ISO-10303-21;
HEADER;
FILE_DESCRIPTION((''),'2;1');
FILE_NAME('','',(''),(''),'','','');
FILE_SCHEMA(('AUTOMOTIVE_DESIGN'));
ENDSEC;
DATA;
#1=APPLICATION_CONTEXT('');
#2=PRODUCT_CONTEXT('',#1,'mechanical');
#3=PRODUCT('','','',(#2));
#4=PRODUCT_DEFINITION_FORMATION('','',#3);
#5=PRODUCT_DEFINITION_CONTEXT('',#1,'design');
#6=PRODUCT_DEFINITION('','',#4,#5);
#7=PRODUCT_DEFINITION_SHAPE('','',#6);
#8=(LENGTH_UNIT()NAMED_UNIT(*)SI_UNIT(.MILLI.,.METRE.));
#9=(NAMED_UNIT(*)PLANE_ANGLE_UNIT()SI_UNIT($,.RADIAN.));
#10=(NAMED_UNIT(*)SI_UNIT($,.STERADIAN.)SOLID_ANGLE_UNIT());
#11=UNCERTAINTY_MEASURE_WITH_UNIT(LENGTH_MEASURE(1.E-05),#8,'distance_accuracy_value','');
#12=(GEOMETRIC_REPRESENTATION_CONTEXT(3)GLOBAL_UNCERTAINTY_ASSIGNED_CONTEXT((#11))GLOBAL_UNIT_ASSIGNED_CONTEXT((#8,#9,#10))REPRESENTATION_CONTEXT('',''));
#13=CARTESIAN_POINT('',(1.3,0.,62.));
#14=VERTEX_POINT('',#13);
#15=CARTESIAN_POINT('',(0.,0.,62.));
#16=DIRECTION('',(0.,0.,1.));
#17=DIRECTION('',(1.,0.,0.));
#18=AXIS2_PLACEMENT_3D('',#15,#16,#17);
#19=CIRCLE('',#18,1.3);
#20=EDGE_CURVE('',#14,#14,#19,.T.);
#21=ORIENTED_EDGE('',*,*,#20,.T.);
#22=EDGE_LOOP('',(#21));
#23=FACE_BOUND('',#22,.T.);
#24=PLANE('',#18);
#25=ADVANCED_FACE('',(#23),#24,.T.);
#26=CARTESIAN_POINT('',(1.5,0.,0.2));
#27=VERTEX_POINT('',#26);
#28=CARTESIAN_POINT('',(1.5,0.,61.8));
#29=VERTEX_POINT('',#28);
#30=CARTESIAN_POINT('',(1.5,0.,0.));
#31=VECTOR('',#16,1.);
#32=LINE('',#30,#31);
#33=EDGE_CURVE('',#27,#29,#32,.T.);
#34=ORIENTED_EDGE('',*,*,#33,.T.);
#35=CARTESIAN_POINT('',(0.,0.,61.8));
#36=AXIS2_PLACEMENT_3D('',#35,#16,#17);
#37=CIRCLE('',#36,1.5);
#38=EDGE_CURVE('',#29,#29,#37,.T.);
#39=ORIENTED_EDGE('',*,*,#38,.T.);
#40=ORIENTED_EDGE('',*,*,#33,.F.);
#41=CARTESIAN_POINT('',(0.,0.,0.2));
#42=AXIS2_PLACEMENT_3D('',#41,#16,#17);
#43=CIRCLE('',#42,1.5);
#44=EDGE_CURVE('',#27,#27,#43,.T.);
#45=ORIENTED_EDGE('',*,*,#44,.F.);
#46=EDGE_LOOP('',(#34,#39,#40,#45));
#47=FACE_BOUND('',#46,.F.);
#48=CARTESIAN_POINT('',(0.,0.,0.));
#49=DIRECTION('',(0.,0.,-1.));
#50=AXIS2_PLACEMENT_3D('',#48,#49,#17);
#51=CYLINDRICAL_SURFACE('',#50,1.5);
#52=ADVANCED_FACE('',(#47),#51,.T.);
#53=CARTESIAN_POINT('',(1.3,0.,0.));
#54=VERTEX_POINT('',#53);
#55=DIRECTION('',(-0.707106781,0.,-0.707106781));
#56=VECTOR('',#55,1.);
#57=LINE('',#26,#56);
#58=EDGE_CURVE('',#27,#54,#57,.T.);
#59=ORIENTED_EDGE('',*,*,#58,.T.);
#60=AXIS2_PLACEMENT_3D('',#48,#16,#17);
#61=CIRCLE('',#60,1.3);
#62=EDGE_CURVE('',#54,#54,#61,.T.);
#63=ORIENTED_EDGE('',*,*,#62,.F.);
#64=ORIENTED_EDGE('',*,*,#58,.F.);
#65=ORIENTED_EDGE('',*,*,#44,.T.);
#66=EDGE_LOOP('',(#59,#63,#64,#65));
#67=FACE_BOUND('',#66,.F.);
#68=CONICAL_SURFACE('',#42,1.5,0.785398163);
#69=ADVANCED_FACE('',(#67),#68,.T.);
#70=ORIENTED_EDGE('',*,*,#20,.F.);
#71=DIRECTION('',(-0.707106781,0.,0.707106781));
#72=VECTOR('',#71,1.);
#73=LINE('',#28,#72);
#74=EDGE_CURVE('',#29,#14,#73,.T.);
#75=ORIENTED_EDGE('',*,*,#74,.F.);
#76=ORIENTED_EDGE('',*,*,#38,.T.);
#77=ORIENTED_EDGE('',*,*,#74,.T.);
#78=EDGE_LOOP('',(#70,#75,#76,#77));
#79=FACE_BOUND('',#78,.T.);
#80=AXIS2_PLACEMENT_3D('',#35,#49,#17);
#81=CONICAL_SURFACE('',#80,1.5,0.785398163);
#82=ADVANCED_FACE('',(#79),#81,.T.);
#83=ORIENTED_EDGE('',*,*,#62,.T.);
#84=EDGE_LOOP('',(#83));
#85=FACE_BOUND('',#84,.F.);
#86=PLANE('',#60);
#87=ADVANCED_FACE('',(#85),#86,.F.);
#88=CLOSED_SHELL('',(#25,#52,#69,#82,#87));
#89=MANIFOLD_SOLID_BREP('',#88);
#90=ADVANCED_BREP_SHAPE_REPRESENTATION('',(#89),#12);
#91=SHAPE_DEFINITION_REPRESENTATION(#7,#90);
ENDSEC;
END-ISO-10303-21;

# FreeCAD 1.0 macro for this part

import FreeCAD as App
import Part
import Sketcher
from FreeCAD import Vector


def edges_at(feature, points):
    """Names of the edges that pass closest to the given points."""
    edges = feature.Shape.Edges
    near = lambda p: min(range(len(edges)), key=lambda i: edges[i].distToShape(Part.Vertex(*p))[0])
    return sorted({f"Edge{near(p) + 1}" for p in points})

doc = App.newDocument("Part")
body = doc.addObject("PartDesign::Body", "Body")

sketch1 = doc.addObject("Sketcher::SketchObject", "Sketch")
body.addObject(sketch1)
sketch1.AttachmentSupport = (doc.XY_Plane, [""])
sketch1.MapMode = "FlatFace"
sketch1.addGeometry(Part.Circle(Vector(0, 0, 0), Vector(0, 0, 1), 1.5), False)
sketch1.addConstraint([
    Sketcher.Constraint("Coincident", 0, 3, -1, 1),
    Sketcher.Constraint("Diameter", 0, 3.0),
])
pad1 = doc.addObject("PartDesign::Pad", "Pad")
body.addObject(pad1)
pad1.Profile = sketch1
pad1.Length = 62
doc.recompute()

chamfer = doc.addObject("PartDesign::Chamfer", "Chamfer")
body.addObject(chamfer)
chamfer.Base = (pad1, edges_at(pad1, [(-1.5, 0, 62), (-1.5, 0, 0)]))
chamfer.Size = 0.2

doc.recompute()
